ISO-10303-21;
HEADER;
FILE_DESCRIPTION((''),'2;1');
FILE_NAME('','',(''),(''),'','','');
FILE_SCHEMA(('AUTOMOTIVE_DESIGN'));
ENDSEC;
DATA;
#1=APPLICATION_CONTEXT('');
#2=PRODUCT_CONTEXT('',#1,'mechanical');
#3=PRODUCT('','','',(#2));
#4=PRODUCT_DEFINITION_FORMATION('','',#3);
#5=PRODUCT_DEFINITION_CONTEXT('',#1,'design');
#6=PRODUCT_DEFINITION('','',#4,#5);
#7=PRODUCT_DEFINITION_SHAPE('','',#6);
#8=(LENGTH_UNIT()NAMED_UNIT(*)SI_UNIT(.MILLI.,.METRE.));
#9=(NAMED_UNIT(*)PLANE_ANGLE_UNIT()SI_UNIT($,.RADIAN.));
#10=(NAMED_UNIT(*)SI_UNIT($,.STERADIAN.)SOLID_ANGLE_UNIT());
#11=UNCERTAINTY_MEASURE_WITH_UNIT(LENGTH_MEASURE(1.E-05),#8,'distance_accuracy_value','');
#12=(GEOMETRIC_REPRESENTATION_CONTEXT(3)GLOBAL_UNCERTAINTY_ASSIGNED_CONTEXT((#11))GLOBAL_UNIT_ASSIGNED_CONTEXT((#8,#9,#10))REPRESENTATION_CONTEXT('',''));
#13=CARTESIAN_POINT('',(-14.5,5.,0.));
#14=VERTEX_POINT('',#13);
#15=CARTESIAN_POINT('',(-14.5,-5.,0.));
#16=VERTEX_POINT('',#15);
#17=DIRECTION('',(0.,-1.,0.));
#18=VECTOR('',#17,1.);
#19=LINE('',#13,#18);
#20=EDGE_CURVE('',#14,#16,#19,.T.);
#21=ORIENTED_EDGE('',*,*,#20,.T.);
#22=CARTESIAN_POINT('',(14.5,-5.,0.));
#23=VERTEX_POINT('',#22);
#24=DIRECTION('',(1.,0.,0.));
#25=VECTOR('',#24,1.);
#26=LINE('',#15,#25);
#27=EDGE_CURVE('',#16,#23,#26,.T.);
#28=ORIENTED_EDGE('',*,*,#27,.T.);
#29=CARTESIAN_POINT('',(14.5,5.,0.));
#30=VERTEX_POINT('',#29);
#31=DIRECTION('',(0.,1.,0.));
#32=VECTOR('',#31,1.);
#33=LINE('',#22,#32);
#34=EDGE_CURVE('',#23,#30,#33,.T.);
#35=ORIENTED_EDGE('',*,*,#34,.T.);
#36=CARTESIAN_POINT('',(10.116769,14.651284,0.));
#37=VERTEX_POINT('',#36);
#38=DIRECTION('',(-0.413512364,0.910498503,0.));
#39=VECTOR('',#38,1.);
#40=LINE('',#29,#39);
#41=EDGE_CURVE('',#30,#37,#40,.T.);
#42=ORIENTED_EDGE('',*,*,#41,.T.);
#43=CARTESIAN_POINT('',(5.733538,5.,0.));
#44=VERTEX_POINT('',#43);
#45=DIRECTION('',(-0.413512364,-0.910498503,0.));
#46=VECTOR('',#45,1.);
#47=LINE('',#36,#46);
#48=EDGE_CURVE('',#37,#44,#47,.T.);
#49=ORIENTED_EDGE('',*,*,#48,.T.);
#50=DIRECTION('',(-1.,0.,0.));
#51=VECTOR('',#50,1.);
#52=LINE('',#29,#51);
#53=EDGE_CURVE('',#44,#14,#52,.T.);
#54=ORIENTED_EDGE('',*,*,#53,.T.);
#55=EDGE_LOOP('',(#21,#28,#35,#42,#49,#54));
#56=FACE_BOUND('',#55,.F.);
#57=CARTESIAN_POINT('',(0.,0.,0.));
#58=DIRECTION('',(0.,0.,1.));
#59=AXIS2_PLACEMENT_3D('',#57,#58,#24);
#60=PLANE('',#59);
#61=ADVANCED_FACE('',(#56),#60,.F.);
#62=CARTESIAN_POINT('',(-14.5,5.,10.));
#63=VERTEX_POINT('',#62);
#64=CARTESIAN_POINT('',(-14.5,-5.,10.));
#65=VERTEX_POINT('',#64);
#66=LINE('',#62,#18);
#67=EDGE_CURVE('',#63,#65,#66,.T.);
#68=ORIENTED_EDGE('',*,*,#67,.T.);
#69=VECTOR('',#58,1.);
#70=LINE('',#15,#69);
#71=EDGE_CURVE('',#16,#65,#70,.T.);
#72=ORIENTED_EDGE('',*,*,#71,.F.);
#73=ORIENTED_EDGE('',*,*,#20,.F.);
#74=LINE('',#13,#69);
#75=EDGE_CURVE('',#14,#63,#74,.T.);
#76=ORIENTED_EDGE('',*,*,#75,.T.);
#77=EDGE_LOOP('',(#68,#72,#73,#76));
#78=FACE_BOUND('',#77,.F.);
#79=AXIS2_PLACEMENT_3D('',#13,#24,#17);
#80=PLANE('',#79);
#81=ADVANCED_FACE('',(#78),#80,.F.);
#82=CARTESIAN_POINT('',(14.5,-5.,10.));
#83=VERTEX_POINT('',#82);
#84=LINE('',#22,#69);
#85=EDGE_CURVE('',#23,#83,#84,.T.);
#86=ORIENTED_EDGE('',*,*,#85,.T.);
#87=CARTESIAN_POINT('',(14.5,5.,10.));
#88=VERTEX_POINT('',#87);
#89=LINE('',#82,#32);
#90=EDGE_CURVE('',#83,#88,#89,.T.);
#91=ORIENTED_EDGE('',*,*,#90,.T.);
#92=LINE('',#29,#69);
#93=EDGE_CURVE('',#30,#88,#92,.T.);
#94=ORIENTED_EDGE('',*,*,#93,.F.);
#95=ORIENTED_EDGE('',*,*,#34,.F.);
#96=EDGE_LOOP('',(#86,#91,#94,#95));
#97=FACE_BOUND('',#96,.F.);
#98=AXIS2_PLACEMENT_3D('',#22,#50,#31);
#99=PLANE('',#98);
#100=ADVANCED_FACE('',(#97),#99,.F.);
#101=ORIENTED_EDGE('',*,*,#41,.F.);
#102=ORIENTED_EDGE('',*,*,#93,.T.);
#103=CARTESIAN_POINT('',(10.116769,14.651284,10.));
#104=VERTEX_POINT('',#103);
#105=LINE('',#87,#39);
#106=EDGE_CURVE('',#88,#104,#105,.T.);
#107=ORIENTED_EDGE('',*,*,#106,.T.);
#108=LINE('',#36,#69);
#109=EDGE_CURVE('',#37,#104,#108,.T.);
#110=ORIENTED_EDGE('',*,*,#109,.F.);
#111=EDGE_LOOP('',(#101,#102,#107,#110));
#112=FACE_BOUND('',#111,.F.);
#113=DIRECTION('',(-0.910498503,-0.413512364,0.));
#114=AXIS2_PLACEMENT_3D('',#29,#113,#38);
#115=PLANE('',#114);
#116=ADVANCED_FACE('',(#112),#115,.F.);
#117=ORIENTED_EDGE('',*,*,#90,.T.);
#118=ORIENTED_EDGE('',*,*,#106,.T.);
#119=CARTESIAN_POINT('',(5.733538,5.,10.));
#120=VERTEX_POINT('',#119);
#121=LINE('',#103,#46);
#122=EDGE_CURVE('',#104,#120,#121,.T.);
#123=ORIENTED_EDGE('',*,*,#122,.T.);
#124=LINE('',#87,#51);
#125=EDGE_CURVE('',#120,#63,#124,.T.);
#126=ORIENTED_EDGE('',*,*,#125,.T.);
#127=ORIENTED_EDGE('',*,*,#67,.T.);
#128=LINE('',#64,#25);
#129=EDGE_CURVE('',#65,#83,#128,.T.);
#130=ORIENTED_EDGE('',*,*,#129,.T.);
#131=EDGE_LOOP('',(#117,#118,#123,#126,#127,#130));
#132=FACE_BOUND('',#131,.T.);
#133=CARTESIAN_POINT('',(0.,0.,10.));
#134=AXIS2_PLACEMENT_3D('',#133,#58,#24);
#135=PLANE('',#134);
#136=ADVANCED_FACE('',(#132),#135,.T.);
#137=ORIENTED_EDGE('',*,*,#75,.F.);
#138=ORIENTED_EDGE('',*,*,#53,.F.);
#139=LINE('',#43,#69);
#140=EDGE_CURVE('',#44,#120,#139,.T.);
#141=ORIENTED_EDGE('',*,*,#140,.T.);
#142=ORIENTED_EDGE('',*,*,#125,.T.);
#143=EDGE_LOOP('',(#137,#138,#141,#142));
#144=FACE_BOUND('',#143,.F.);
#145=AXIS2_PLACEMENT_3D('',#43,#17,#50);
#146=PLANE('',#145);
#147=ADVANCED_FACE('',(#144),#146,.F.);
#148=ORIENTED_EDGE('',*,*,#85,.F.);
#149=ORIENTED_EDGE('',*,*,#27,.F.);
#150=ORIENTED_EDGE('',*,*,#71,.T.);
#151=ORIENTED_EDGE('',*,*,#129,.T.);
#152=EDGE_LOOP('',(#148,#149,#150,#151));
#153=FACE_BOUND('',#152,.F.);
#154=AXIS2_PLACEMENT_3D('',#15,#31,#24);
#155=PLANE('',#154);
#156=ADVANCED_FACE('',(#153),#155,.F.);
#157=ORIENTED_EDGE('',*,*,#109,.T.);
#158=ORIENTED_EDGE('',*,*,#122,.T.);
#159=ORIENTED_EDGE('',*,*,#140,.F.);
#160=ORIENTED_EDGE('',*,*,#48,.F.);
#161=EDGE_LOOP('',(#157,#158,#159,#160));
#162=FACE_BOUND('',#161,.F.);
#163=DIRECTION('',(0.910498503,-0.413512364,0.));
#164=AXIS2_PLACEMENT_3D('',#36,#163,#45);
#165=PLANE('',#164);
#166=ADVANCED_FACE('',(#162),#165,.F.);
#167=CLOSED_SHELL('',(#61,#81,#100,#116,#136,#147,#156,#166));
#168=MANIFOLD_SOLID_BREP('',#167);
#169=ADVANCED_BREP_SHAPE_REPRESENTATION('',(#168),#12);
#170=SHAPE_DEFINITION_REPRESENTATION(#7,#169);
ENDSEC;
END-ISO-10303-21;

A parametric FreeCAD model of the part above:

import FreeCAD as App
import Part
import Sketcher
from FreeCAD import Vector
Q = App.Units.Quantity

doc = App.newDocument("Part")
body = doc.addObject("PartDesign::Body", "Body")

# Sketch on XY plane
sketch1 = body.newObject("Sketcher::SketchObject", "Sketch")
sketch1.AttachmentSupport = (doc.getObject("XY_Plane"), [""])
sketch1.MapMode = "FlatFace"
sketch1.addGeometry([
    Part.LineSegment(Vector(-14, 5, 0), Vector(-14, -5, 0)),  # 0
    Part.LineSegment(Vector(-14, -5, 0), Vector(14, -5, 0)),  # 1
    Part.LineSegment(Vector(14, -5, 0), Vector(14, 5, 0)),  # 2
    Part.LineSegment(Vector(14, 5, 0), Vector(10, 15, 0)),  # 3
    Part.LineSegment(Vector(10, 15, 0), Vector(6, 5, 0)),  # 4
    Part.LineSegment(Vector(6, 5, 0), Vector(-14, 5, 0)),  # 5
], False)
sketch1.addConstraint([
    Sketcher.Constraint("Coincident", 0, 2, 1, 1),
    Sketcher.Constraint("Coincident", 1, 2, 2, 1),
    Sketcher.Constraint("Coincident", 2, 2, 3, 1),
    Sketcher.Constraint("Coincident", 3, 2, 4, 1),
    Sketcher.Constraint("Coincident", 4, 2, 5, 1),
    Sketcher.Constraint("Coincident", 5, 2, 0, 1),
    Sketcher.Constraint("Vertical", 0),
    Sketcher.Constraint("Horizontal", 1),
    Sketcher.Constraint("Vertical", 2),
    Sketcher.Constraint("Horizontal", 5),
    Sketcher.Constraint("Symmetric", 0, 2, 2, 2, -1, 1),
    Sketcher.Constraint("Horizontal", 2, 2, 4, 2),
    Sketcher.Constraint("Equal", 3, 4),
    Sketcher.Constraint("DistanceX", 1, 1, 1, 2, Q("29 mm")),
    Sketcher.Constraint("DistanceY", 0, 2, 0, 1, Q("10 mm")),
    Sketcher.Constraint("Distance", 3, Q("10.6 mm")),
    Sketcher.Constraint("DistanceX", 5, 2, 5, 1, Q("20.233538 mm")),
])
pad1 = body.newObject("PartDesign::Pad", "Pad")
pad1.Profile = sketch1
pad1.Length = 10

doc.recompute()
